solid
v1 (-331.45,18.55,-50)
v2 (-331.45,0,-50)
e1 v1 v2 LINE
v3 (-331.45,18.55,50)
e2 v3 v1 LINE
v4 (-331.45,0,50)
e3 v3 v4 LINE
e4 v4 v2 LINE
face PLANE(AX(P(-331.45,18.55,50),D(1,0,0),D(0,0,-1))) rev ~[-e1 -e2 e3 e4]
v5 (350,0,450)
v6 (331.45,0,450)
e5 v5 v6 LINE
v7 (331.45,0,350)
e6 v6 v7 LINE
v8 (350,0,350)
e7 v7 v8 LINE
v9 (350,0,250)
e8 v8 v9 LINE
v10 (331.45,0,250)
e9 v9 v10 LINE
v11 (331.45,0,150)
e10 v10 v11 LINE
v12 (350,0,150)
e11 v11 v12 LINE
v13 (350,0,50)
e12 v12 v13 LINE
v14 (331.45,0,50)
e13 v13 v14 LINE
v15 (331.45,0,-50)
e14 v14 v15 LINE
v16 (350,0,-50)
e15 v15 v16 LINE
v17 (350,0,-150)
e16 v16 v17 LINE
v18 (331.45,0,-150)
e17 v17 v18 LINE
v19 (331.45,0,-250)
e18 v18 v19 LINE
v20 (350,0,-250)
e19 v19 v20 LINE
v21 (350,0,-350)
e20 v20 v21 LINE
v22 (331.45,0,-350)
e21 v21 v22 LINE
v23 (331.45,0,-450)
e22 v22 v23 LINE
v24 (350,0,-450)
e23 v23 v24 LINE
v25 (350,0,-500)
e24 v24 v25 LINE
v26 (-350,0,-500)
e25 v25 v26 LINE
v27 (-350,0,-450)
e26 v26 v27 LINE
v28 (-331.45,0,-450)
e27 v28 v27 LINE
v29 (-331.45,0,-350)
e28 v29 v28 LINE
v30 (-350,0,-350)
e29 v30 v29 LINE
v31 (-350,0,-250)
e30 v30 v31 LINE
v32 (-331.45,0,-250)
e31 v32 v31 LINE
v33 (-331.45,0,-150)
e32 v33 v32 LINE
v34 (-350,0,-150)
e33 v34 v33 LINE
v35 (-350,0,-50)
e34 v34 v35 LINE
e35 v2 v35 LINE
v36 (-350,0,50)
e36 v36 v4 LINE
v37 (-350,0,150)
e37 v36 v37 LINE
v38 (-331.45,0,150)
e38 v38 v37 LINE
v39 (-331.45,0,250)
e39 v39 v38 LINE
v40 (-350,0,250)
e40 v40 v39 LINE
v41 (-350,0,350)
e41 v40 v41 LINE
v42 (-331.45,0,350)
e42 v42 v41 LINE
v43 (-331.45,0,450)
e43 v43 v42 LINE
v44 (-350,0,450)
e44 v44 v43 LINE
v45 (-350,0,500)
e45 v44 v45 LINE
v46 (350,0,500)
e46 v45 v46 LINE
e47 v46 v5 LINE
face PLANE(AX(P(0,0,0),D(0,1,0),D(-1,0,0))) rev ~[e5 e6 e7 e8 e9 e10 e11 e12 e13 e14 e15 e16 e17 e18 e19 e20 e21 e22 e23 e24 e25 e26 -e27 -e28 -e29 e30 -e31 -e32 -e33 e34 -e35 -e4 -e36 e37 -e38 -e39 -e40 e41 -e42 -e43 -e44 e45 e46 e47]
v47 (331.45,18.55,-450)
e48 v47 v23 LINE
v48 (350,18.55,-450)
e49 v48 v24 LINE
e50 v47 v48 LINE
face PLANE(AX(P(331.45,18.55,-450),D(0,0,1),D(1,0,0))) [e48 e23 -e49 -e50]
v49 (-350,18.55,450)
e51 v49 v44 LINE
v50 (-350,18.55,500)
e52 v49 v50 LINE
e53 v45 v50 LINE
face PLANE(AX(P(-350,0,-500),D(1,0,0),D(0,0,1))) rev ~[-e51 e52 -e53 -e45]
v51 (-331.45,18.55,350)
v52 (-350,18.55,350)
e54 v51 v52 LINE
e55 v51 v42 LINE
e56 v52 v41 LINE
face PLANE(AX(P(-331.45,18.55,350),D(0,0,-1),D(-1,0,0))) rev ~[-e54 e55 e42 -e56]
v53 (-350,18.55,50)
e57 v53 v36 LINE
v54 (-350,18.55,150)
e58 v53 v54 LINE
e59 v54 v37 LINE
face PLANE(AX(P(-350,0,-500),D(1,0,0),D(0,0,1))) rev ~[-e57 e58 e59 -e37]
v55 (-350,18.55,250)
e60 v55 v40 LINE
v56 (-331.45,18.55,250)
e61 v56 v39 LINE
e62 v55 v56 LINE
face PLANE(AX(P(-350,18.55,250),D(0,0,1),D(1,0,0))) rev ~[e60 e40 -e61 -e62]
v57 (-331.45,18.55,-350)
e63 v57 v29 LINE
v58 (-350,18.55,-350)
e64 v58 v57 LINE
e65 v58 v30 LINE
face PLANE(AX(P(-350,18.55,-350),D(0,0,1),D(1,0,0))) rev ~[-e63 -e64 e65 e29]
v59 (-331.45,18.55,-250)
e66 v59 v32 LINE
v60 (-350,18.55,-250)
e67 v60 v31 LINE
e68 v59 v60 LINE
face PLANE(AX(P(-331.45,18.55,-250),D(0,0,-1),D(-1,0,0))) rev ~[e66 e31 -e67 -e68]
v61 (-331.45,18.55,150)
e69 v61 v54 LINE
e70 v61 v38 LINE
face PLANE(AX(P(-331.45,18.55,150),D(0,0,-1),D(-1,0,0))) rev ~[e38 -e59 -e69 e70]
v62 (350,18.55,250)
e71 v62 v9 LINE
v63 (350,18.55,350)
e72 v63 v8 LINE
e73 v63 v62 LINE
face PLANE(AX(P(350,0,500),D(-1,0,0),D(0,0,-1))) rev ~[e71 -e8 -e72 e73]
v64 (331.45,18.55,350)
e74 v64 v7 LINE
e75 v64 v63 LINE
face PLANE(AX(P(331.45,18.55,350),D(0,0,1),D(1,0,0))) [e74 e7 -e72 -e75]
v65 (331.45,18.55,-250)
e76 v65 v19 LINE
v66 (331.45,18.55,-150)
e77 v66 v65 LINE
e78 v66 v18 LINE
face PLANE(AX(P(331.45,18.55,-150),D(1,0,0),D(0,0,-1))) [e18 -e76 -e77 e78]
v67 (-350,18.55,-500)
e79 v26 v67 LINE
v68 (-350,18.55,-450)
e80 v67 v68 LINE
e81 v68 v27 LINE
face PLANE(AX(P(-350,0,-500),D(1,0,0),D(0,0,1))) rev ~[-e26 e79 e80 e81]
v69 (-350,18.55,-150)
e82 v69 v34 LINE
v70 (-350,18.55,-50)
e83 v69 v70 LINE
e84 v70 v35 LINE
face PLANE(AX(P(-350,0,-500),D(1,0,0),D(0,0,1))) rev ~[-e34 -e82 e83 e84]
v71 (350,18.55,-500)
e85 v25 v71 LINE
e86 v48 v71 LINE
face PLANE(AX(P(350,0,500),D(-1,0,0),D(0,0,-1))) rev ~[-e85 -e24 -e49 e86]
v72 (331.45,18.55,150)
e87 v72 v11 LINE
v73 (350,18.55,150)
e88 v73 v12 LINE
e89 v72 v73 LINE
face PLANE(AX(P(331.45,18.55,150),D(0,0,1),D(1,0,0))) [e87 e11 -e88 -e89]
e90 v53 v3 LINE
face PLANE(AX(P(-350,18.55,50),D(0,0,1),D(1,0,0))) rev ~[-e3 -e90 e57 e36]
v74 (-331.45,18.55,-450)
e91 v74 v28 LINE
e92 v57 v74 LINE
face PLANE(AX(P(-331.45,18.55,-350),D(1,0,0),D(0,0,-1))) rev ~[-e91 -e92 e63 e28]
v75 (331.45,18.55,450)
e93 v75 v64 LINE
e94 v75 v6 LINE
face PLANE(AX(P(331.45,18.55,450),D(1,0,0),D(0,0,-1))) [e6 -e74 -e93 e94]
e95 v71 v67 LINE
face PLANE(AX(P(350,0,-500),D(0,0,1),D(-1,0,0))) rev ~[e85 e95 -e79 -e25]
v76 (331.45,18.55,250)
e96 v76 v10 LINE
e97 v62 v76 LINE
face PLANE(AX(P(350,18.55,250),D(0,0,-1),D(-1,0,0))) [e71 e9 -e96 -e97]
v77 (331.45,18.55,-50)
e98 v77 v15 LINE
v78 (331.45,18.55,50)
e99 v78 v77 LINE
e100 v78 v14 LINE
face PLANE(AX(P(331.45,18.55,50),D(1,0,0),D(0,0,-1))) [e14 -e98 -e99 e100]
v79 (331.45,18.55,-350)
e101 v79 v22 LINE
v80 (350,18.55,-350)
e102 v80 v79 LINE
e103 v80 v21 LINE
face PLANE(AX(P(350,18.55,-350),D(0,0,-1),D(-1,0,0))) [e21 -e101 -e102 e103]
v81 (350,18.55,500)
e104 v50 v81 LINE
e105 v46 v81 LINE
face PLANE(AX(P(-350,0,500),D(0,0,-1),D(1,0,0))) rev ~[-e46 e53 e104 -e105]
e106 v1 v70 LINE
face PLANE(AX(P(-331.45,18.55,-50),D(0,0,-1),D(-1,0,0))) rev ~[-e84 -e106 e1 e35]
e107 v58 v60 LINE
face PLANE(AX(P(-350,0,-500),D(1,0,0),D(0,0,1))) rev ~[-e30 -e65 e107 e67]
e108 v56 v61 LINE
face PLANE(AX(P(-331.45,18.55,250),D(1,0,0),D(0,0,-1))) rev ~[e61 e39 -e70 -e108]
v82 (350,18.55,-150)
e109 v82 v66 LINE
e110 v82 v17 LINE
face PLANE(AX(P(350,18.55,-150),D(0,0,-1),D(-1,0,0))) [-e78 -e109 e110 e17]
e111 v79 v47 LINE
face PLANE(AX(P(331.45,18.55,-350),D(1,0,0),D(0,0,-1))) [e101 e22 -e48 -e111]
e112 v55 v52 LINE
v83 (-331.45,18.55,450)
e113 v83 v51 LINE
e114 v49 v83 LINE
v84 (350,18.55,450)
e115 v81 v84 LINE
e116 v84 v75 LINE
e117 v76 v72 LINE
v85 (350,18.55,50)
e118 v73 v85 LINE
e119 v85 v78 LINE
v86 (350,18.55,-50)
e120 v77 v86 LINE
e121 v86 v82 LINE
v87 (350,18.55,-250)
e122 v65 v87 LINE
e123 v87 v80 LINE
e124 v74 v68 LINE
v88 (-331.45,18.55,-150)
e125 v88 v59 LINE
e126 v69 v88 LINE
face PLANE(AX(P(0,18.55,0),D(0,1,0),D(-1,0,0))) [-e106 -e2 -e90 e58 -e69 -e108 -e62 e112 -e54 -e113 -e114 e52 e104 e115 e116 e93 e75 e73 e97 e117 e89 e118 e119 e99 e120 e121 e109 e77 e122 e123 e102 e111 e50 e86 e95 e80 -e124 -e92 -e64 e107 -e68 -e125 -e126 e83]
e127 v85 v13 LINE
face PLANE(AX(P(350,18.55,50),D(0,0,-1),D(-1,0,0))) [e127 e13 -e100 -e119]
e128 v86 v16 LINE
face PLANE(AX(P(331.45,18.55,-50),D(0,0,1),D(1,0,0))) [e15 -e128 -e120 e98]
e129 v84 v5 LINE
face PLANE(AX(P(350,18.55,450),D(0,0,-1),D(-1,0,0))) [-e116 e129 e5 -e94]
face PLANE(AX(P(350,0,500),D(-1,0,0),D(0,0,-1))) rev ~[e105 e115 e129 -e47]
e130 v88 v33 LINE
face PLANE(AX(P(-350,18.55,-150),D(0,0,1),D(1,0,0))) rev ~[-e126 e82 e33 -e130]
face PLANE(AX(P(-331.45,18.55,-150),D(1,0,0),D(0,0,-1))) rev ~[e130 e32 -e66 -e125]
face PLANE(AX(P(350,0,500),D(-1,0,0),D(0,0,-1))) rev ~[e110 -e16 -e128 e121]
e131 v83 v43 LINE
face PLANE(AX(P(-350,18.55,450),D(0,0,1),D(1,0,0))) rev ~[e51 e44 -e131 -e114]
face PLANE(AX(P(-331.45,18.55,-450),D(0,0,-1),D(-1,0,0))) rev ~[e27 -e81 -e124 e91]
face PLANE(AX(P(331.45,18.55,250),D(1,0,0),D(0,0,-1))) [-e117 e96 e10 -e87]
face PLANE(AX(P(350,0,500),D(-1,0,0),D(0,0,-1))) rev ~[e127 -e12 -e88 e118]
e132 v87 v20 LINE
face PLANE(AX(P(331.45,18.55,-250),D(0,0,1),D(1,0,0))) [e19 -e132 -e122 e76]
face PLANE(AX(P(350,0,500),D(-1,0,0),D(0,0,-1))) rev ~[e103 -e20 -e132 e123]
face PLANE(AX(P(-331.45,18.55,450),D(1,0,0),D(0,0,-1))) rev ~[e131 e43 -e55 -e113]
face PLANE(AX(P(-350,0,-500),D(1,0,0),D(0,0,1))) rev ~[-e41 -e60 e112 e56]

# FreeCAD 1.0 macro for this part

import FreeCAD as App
import Part
import Sketcher


def add_polygon(sketch, points):
    """Adds a closed chain of lines whose ends are joined by coincident constraints."""
    first, n = sketch.GeometryCount, len(points)
    for a, b in zip(points, points[1:] + points[:1]):
        sketch.addGeometry(Part.LineSegment(App.Vector(*a, 0), App.Vector(*b, 0)), False)
    for i in range(n):
        sketch.addConstraint(Sketcher.Constraint("Coincident", first + i, 2, first + (i + 1) % n, 1))

doc = App.newDocument("Part")
body = doc.addObject("PartDesign::Body", "Body")

# Sketch on XZ plane
sketch1 = body.newObject("Sketcher::SketchObject", "Sketch")
sketch1.AttachmentSupport = (doc.getObject("XZ_Plane"), [""])
sketch1.MapMode = "FlatFace"
add_polygon(sketch1, [(350, 500), (350, -500), (-350, -500), (-350, 500)])  # lines 0-3
sketch1.addConstraint([
    Sketcher.Constraint("Vertical", 0),
    Sketcher.Constraint("Horizontal", 1),
    Sketcher.Constraint("Vertical", 2),
    Sketcher.Constraint("Horizontal", 3),
    Sketcher.Constraint("Symmetric", 0, 2, 2, 2, -1, 1),
    Sketcher.Constraint("DistanceX", 1, 2, 1, 1, 700.0),
    Sketcher.Constraint("DistanceY", 0, 2, 0, 1, 1000.0),
])
pad1 = body.newObject("PartDesign::Pad", "Pad")
pad1.Profile = sketch1
pad1.Length = 18.55
pad1.Reversed = True

# Sketch on XZ plane
sketch2 = body.newObject("Sketcher::SketchObject", "Sketch001")
sketch2.AttachmentSupport = (doc.getObject("XZ_Plane"), [""])
sketch2.MapMode = "FlatFace"
sketch2.AttachmentOffset = App.Placement(App.Vector(0, 0, -18.55), App.Rotation())
add_polygon(sketch2, [(-331.45, -450), (-350, -450), (-350, -350), (-331.45, -350)])  # lines 0-3
add_polygon(sketch2, [(-331.45, 350), (-350, 350), (-350, 450), (-331.45, 450)])  # lines 4-7
add_polygon(sketch2, [(-331.45, 150), (-350, 150), (-350, 250), (-331.45, 250)])  # lines 8-11
add_polygon(sketch2, [(-331.45, -50), (-350, -50), (-350, 50), (-331.45, 50)])  # lines 12-15
add_polygon(sketch2, [(-331.45, -250), (-350, -250), (-350, -150), (-331.45, -150)])  # lines 16-19
add_polygon(sketch2, [(331.45, 450), (350, 450), (350, 350), (331.45, 350)])  # lines 20-23
add_polygon(sketch2, [(331.45, 250), (350, 250), (350, 150), (331.45, 150)])  # lines 24-27
add_polygon(sketch2, [(331.45, 50), (350, 50), (350, -50), (331.45, -50)])  # lines 28-31
add_polygon(sketch2, [(331.45, -150), (350, -150), (350, -250), (331.45, -250)])  # lines 32-35
add_polygon(sketch2, [(331.45, -350), (350, -350), (350, -450), (331.45, -450)])  # lines 36-39
sketch2.addConstraint([
    Sketcher.Constraint("Horizontal", 0),
    Sketcher.Constraint("Vertical", 1),
    Sketcher.Constraint("Horizontal", 2),
    Sketcher.Constraint("Vertical", 3),
    Sketcher.Constraint("Horizontal", 4),
    Sketcher.Constraint("Vertical", 5),
    Sketcher.Constraint("Horizontal", 6),
    Sketcher.Constraint("Vertical", 7),
    Sketcher.Constraint("Horizontal", 8),
    Sketcher.Constraint("Vertical", 9),
    Sketcher.Constraint("Horizontal", 10),
    Sketcher.Constraint("Vertical", 11),
    Sketcher.Constraint("Horizontal", 12),
    Sketcher.Constraint("Vertical", 13),
    Sketcher.Constraint("Horizontal", 14),
    Sketcher.Constraint("Vertical", 15),
    Sketcher.Constraint("Horizontal", 16),
    Sketcher.Constraint("Vertical", 17),
    Sketcher.Constraint("Horizontal", 18),
    Sketcher.Constraint("Vertical", 19),
    Sketcher.Constraint("Horizontal", 20),
    Sketcher.Constraint("Vertical", 21),
    Sketcher.Constraint("Horizontal", 22),
    Sketcher.Constraint("Vertical", 23),
    Sketcher.Constraint("Horizontal", 24),
    Sketcher.Constraint("Vertical", 25),
    Sketcher.Constraint("Horizontal", 26),
    Sketcher.Constraint("Vertical", 27),
    Sketcher.Constraint("Horizontal", 28),
    Sketcher.Constraint("Vertical", 29),
    Sketcher.Constraint("Horizontal", 30),
    Sketcher.Constraint("Vertical", 31),
    Sketcher.Constraint("Horizontal", 32),
    Sketcher.Constraint("Vertical", 33),
    Sketcher.Constraint("Horizontal", 34),
    Sketcher.Constraint("Vertical", 35),
    Sketcher.Constraint("Horizontal", 36),
    Sketcher.Constraint("Vertical", 37),
    Sketcher.Constraint("Horizontal", 38),
    Sketcher.Constraint("Vertical", 39),
    Sketcher.Constraint("Symmetric", 0, 2, 20, 2, -1, 1),
    Sketcher.Constraint("Symmetric", 2, 2, 22, 2, -1, 1),
    Sketcher.Constraint("Symmetric", 16, 2, 24, 2, -1, 1),
    Sketcher.Constraint("Symmetric", 18, 2, 26, 2, -1, 1),
    Sketcher.Constraint("Symmetric", 12, 2, 28, 2, -1, 1),
    Sketcher.Constraint("Symmetric", 14, 2, 30, 2, -1, 1),
    Sketcher.Constraint("Symmetric", 8, 2, 32, 2, -1, 1),
    Sketcher.Constraint("Symmetric", 10, 2, 34, 2, -1, 1),
    Sketcher.Constraint("Symmetric", 4, 2, 36, 2, -1, 1),
    Sketcher.Constraint("Symmetric", 6, 2, 38, 2, -1, 1),
    Sketcher.Constraint("Symmetric", 5, 2, 20, 2, -2),
    Sketcher.Constraint("Symmetric", 7, 2, 22, 2, -2),
    Sketcher.Constraint("Symmetric", 9, 2, 24, 2, -2),
    Sketcher.Constraint("Symmetric", 11, 2, 26, 2, -2),
    Sketcher.Constraint("Horizontal", 14, 2, 28, 2),
    Sketcher.Constraint("Vertical", 5, 2, 8, 2),
    Sketcher.Constraint("Vertical", 7, 2, 10, 2),
    Sketcher.Constraint("Vertical", 9, 2, 12, 2),
    Sketcher.Constraint("Vertical", 11, 2, 14, 2),
    Sketcher.Constraint("Equal", 7, 9),
    Sketcher.Constraint("Equal", 11, 13),
    Sketcher.Constraint("DistanceY", 1, 1, 1, 2, 100.0),
    Sketcher.Constraint("DistanceY", 8, 2, 4, 2, 200.0),
    Sketcher.Constraint("DistanceY", 12, 2, 8, 2, 200.0),
    Sketcher.Constraint("DistanceX", 0, 2, 0, 1, 18.55),
    Sketcher.Constraint("DistanceX", 0, 2, -1, 1, 350.0),
])
pocket1 = body.newObject("PartDesign::Pocket", "Pocket")
pocket1.Profile = sketch2
pocket1.Length = 18.55
pocket1.Reversed = True

doc.recompute()
